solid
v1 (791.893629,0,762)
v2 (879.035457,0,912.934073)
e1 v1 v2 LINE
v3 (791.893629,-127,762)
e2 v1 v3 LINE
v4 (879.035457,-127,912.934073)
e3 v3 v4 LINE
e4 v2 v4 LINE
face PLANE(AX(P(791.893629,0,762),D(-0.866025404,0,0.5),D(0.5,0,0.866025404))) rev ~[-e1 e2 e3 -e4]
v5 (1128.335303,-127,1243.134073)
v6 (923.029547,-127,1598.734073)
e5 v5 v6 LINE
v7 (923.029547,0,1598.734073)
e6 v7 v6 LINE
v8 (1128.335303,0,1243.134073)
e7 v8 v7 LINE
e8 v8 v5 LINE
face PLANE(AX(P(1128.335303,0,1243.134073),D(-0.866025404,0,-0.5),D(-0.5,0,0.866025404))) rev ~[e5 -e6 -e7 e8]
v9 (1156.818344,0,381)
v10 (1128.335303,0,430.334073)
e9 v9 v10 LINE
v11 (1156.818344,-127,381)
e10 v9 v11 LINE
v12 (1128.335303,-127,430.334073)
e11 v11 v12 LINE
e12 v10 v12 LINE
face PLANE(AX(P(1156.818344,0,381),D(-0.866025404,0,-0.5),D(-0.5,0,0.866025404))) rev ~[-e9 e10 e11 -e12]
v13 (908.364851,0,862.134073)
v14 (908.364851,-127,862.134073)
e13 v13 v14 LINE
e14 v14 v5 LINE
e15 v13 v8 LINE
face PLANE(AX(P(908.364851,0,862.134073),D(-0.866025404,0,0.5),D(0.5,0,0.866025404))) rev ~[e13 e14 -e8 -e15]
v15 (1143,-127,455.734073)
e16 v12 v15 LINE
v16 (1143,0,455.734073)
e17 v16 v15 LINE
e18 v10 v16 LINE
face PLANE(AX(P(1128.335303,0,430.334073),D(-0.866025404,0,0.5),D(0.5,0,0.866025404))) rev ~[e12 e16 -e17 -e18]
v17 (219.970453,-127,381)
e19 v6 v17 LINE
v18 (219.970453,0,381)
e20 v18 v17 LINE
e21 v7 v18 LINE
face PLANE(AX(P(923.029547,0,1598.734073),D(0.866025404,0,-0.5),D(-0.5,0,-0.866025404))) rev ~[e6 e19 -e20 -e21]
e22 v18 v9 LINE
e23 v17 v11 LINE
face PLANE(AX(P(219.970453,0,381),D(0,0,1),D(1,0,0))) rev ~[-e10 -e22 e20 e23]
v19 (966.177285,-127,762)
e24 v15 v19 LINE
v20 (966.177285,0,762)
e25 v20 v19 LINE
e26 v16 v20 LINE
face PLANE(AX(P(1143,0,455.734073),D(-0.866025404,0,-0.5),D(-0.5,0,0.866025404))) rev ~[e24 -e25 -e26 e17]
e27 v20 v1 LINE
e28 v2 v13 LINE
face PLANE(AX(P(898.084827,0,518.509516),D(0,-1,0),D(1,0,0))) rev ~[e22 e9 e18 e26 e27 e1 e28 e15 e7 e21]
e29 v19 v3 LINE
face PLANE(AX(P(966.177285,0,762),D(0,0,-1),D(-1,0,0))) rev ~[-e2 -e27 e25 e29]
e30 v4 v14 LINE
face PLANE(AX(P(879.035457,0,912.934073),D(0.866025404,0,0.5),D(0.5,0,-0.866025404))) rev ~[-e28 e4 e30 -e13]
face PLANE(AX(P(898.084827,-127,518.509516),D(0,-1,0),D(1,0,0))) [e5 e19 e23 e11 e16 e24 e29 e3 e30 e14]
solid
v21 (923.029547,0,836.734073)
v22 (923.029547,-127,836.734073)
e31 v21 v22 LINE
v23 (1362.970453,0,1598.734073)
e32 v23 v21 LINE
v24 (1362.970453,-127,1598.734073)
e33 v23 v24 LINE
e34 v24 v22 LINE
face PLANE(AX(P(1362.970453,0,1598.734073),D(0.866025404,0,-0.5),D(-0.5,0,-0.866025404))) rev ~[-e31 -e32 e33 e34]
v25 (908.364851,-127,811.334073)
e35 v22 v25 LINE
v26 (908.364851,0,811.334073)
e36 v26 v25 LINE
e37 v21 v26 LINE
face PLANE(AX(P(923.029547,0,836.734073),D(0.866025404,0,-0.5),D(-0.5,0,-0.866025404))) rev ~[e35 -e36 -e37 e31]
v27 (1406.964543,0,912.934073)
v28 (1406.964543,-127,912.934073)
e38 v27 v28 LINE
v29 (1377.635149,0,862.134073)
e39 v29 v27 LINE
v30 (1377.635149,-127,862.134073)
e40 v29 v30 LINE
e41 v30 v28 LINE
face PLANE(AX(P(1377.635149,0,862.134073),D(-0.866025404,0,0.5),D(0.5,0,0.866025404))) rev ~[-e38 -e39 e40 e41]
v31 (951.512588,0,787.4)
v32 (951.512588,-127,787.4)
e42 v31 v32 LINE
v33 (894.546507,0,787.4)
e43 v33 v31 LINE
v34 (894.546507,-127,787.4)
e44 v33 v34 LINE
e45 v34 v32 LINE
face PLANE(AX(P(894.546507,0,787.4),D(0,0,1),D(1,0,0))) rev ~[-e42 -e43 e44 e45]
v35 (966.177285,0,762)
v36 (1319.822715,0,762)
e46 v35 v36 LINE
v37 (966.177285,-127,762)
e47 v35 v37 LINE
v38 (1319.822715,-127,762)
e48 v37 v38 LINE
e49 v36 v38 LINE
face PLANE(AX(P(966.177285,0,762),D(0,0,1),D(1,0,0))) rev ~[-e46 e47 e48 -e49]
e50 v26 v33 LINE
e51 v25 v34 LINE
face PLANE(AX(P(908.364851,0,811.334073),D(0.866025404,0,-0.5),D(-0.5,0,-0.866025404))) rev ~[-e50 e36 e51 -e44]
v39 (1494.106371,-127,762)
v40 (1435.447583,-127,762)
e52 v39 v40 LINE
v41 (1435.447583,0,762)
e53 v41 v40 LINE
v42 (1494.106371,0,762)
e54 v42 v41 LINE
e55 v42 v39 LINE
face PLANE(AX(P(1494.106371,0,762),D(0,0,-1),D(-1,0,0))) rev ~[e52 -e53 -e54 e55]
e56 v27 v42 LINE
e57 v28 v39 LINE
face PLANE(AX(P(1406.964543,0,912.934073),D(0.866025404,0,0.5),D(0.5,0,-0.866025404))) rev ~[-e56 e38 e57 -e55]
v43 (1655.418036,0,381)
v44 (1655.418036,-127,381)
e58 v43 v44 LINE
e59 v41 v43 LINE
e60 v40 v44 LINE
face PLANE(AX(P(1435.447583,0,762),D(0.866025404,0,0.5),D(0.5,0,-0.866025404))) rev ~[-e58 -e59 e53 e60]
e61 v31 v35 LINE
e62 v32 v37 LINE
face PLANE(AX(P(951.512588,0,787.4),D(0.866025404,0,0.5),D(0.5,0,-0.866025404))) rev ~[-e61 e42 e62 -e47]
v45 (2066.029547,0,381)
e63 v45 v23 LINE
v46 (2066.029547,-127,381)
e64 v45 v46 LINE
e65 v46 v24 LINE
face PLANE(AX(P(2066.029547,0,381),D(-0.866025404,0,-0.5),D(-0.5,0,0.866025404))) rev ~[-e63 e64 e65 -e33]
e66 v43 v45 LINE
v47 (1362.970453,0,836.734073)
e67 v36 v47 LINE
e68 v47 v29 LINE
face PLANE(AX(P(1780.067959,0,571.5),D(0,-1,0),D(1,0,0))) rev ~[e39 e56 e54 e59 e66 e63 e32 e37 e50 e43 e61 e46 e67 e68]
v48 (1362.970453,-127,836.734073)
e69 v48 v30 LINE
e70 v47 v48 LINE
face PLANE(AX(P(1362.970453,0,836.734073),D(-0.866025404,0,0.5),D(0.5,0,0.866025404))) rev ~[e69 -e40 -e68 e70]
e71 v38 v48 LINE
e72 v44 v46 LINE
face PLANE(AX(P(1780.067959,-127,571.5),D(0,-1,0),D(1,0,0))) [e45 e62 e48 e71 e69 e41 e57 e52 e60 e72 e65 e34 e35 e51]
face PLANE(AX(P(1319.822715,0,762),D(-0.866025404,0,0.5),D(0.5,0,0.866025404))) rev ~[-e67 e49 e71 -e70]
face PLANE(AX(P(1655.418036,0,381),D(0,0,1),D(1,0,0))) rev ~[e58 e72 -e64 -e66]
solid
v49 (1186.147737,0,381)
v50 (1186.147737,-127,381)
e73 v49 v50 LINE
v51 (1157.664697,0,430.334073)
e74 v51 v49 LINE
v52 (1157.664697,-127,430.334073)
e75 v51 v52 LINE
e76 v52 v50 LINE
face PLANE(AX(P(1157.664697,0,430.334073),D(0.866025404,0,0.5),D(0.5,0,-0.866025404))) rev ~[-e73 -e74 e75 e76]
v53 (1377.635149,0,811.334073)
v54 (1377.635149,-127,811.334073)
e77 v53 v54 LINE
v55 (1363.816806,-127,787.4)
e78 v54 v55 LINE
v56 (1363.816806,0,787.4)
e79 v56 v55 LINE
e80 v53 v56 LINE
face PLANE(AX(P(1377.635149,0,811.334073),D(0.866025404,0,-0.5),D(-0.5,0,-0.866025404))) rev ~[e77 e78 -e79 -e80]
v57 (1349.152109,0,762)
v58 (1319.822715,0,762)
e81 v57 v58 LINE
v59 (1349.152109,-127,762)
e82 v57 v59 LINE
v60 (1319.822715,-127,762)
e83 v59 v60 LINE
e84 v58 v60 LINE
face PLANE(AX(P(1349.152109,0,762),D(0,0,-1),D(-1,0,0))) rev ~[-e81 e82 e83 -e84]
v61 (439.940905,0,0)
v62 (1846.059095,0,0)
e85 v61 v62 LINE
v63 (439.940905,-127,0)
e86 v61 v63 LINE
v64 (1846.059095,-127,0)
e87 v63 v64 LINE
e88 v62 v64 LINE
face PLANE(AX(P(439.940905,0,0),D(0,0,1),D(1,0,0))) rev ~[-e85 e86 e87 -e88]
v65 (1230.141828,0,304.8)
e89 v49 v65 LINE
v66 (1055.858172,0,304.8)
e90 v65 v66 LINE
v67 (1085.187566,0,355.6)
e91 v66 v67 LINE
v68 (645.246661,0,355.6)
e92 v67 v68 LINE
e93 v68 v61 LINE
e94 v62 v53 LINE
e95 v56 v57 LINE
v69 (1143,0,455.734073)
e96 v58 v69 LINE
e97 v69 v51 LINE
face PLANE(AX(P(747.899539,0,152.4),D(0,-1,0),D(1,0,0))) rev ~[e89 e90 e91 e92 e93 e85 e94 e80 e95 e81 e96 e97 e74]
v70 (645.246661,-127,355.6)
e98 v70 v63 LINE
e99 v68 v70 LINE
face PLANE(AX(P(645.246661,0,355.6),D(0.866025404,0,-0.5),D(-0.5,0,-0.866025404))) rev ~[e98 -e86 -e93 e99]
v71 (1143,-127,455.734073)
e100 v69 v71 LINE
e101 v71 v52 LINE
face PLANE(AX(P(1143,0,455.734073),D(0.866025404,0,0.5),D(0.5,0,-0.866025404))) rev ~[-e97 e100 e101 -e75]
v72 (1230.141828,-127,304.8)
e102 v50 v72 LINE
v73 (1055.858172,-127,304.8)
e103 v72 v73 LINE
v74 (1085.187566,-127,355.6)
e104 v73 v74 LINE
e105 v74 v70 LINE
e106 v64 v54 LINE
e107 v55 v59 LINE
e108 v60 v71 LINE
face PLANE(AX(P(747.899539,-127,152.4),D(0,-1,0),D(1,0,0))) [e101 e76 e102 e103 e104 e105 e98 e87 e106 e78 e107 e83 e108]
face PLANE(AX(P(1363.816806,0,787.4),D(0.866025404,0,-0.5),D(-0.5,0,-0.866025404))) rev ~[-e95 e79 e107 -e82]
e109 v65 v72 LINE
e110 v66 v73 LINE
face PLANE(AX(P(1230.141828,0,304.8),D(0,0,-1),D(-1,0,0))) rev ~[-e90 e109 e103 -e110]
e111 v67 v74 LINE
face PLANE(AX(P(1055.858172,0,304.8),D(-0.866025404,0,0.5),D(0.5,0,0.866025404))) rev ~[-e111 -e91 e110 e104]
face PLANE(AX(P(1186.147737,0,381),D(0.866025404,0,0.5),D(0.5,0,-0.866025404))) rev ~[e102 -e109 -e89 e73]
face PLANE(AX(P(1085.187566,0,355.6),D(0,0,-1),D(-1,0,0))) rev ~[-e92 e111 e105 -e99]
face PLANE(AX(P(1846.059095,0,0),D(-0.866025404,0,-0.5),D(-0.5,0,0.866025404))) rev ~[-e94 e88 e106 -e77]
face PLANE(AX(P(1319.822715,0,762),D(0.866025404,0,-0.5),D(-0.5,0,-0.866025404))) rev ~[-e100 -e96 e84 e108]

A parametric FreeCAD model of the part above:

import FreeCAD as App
import Part
import Sketcher
from FreeCAD import Vector
Q = App.Units.Quantity


def add_polygon(sketch, points):
    """Adds a closed chain of lines whose ends are joined by coincident constraints."""
    first, n = sketch.GeometryCount, len(points)
    for a, b in zip(points, points[1:] + points[:1]):
        sketch.addGeometry(Part.LineSegment(App.Vector(*a, 0), App.Vector(*b, 0)), False)
    for i in range(n):
        sketch.addConstraint(Sketcher.Constraint("Coincident", first + i, 2, first + (i + 1) % n, 1))

doc = App.newDocument("Part")
params = doc.addObject("Spreadsheet::Sheet", "Params")
for row, (alias, value) in enumerate([
    ("pad1_length", "5 in"),
    ("pad2_length", "5 in"),
    ("pad3_length", "5 in"),
], start=1):
    params.set(f"A{row}", alias)
    params.set(f"B{row}", "=" + value)
    params.setAlias(f"B{row}", alias)

body = doc.addObject("PartDesign::Body", "Body")

# Sketch on XZ plane
sketch1 = body.newObject("Sketcher::SketchObject", "Sketch")
sketch1.AttachmentSupport = (doc.getObject("XZ_Plane"), [""])
sketch1.MapMode = "FlatFace"
add_polygon(sketch1, [(440, 0), (1846, 0), (1378, 811), (1364, 787), (1349, 762), (1320, 762), (1143, 456), (1158, 430), (1186, 381), (1230, 305), (1056, 305), (1085, 356), (645, 356)])  # lines 0-12
sketch1.addConstraint(Sketcher.Constraint("Horizontal", 0))
sketch1.addConstraint(Sketcher.Constraint("Horizontal", 4))
sketch1.addConstraint(Sketcher.Constraint("Horizontal", 9))
sketch1.addConstraint(Sketcher.Constraint("Horizontal", 11))
sketch1.addConstraint(Sketcher.Constraint("PointOnObject", 0, 2, -1))
sketch1.addConstraint(Sketcher.Constraint("Parallel", 2, 3))
sketch1.addConstraint(Sketcher.Constraint("Parallel", 3, 5))
sketch1.addConstraint(Sketcher.Constraint("Parallel", 1, 6))
sketch1.addConstraint(Sketcher.Constraint("Parallel", 6, 7))
sketch1.addConstraint(Sketcher.Constraint("Parallel", 7, 8))
sketch1.addConstraint(Sketcher.Constraint("Parallel", 5, 10))
sketch1.addConstraint(Sketcher.Constraint("Parallel", 10, 12))
sketch1.addConstraint(Sketcher.Constraint("Equal", 3, 6))
sketch1.addConstraint(Sketcher.Constraint("DistanceY", -1, 1, 2, 2, Q("31 in")))
sketch1.addConstraint(Sketcher.Constraint("DistanceY", -1, 1, 3, 2, Q("30 in")))
sketch1.addConstraint(Sketcher.Constraint("DistanceX", -1, 1, 5, 2, Q("45 in")))
sketch1.addConstraint(Sketcher.Constraint("DistanceY", -1, 1, 7, 2, Q("15 in")))
sketch1.addConstraint(Sketcher.Constraint("DistanceY", -1, 1, 8, 2, Q("12 in")))
sketch1.addConstraint(Sketcher.Constraint("DistanceY", -1, 1, 10, 2, Q("14 in")))
sketch1.addConstraint(Sketcher.Constraint("Angle", 1, Q("120 deg")))
sketch1.addConstraint(Sketcher.Constraint("Angle", 2, Q("-120 deg")))
sketch1.addConstraint(Sketcher.Constraint("DistanceY", 5, 2, 1, 2, Q("14 in")))
sketch1.addConstraint(Sketcher.Constraint("DistanceX", 0, 1, 0, 2, Q("1406.11819 mm")))
sketch1.addConstraint(Sketcher.Constraint("Distance", 1, Q("936.847891 mm")))
sketch1.addConstraint(Sketcher.Constraint("DistanceX", 4, 2, 4, 1, Q("29.329394 mm")))
sketch1.addConstraint(Sketcher.Constraint("DistanceX", 9, 2, 9, 1, Q("174.283655 mm")))
pad1 = body.newObject("PartDesign::Pad", "Pad")
pad1.Profile = sketch1
pad1.setExpression("Length", "Params.pad1_length")
body2 = doc.addObject("PartDesign::Body", "Body001")

# Sketch on XZ plane
sketch2 = body2.newObject("Sketcher::SketchObject", "Sketch001")
sketch2.AttachmentSupport = (doc.getObject("XZ_Plane001"), [""])
sketch2.MapMode = "FlatFace"
add_polygon(sketch2, [(2066, 381), (1363, 1599), (923, 837), (908, 811), (895, 787), (952, 787), (966, 762), (1320, 762), (1363, 837), (1378, 862), (1407, 913), (1494, 762), (1435, 762), (1655, 381)])  # lines 0-13
sketch2.addConstraint(Sketcher.Constraint("Horizontal", 4))
sketch2.addConstraint(Sketcher.Constraint("Horizontal", 6))
sketch2.addConstraint(Sketcher.Constraint("Horizontal", 11))
sketch2.addConstraint(Sketcher.Constraint("Horizontal", 13))
sketch2.addConstraint(Sketcher.Constraint("Parallel", 1, 2))
sketch2.addConstraint(Sketcher.Constraint("Parallel", 2, 3))
sketch2.addConstraint(Sketcher.Constraint("Parallel", 0, 5))
sketch2.addConstraint(Sketcher.Constraint("Parallel", 3, 7))
sketch2.addConstraint(Sketcher.Constraint("Parallel", 7, 8))
sketch2.addConstraint(Sketcher.Constraint("Parallel", 8, 9))
sketch2.addConstraint(Sketcher.Constraint("Parallel", 5, 10))
sketch2.addConstraint(Sketcher.Constraint("Parallel", 10, 12))
sketch2.addConstraint(Sketcher.Constraint("Horizontal", 1, 2, 7, 2))
sketch2.addConstraint(Sketcher.Constraint("Horizontal", 6, 2, 10, 2))
sketch2.addConstraint(Sketcher.Constraint("Vertical", 0, 2, 7, 2))
sketch2.addConstraint(Sketcher.Constraint("Equal", 2, 5))
sketch2.addConstraint(Sketcher.Constraint("Equal", 5, 8))
sketch2.addConstraint(Sketcher.Constraint("DistanceY", -1, 1, 3, 2, Q("31 in")))
sketch2.addConstraint(Sketcher.Constraint("DistanceY", -1, 1, 5, 2, Q("30 in")))
sketch2.addConstraint(Sketcher.Constraint("DistanceY", -1, 1, 12, 2, Q("15 in")))
sketch2.addConstraint(Sketcher.Constraint("Angle", 0, Q("120 deg")))
sketch2.addConstraint(Sketcher.Constraint("Angle", 1, Q("-120 deg")))
sketch2.addConstraint(Sketcher.Constraint("DistanceY", 1, 2, 0, 2, Q("30 in")))
sketch2.addConstraint(Sketcher.Constraint("DistanceY", 8, 2, 9, 2, Q("2 in")))
sketch2.addConstraint(Sketcher.Constraint("DistanceX", 4, 1, 4, 2, Q("56.966081 mm")))
sketch2.addConstraint(Sketcher.Constraint("DistanceX", 13, 1, 13, 2, Q("410.611511 mm")))
sketch2.addConstraint(Sketcher.Constraint("Distance", 0, Q("1406.11819 mm")))
sketch2.addConstraint(Sketcher.Constraint("DistanceX", -1, 1, 2, 2, Q("908.364851 mm")))
pad2 = body2.newObject("PartDesign::Pad", "Pad001")
pad2.Profile = sketch2
pad2.setExpression("Length", "Params.pad2_length")
body3 = doc.addObject("PartDesign::Body", "Body002")

# Sketch on XZ plane
sketch3 = body3.newObject("Sketcher::SketchObject", "Sketch002")
sketch3.AttachmentSupport = (doc.getObject("XZ_Plane002"), [""])
sketch3.MapMode = "FlatFace"
add_polygon(sketch3, [(792, 762), (879, 913), (908, 862), (1128, 1243), (923, 1599), (220, 381), (1157, 381), (1128, 430), (1143, 456), (966, 762)])  # lines 0-9
sketch3.addConstraint(Sketcher.Constraint("Horizontal", 5))
sketch3.addConstraint(Sketcher.Constraint("Horizontal", 9))
sketch3.addConstraint(Sketcher.Constraint("Parallel", 0, 2))
sketch3.addConstraint(Sketcher.Constraint("Parallel", 1, 3))
sketch3.addConstraint(Sketcher.Constraint("Parallel", 2, 4))
sketch3.addConstraint(Sketcher.Constraint("Parallel", 3, 6))
sketch3.addConstraint(Sketcher.Constraint("Parallel", 4, 7))
sketch3.addConstraint(Sketcher.Constraint("Parallel", 6, 8))
sketch3.addConstraint(Sketcher.Constraint("Vertical", 2, 2, 6, 2))
sketch3.addConstraint(Sketcher.Constraint("DistanceY", -1, 1, 4, 2, Q("15 in")))
sketch3.addConstraint(Sketcher.Constraint("DistanceX", -1, 1, 7, 2, Q("45 in")))
sketch3.addConstraint(Sketcher.Constraint("DistanceY", -1, 1, 8, 2, Q("30 in")))
sketch3.addConstraint(Sketcher.Constraint("Angle", 0, Q("60 deg")))
sketch3.addConstraint(Sketcher.Constraint("Angle", 1, Q("-60 deg")))
sketch3.addConstraint(Sketcher.Constraint("DistanceY", 1, 2, 0, 2, Q("2 in")))
sketch3.addConstraint(Sketcher.Constraint("DistanceY", 0, 2, 2, 2, Q("13 in")))
sketch3.addConstraint(Sketcher.Constraint("DistanceY", 2, 2, 3, 2, Q("14 in")))
sketch3.addConstraint(Sketcher.Constraint("DistanceY", 6, 2, 1, 2, Q("17 in")))
sketch3.addConstraint(Sketcher.Constraint("DistanceY", 6, 2, 7, 2, Q("1 in")))
sketch3.addConstraint(Sketcher.Constraint("DistanceX", 5, 1, 5, 2, Q("936.847891 mm")))
pad3 = body3.newObject("PartDesign::Pad", "Pad002")
pad3.Profile = sketch3
pad3.setExpression("Length", "Params.pad3_length")

doc.recompute()
